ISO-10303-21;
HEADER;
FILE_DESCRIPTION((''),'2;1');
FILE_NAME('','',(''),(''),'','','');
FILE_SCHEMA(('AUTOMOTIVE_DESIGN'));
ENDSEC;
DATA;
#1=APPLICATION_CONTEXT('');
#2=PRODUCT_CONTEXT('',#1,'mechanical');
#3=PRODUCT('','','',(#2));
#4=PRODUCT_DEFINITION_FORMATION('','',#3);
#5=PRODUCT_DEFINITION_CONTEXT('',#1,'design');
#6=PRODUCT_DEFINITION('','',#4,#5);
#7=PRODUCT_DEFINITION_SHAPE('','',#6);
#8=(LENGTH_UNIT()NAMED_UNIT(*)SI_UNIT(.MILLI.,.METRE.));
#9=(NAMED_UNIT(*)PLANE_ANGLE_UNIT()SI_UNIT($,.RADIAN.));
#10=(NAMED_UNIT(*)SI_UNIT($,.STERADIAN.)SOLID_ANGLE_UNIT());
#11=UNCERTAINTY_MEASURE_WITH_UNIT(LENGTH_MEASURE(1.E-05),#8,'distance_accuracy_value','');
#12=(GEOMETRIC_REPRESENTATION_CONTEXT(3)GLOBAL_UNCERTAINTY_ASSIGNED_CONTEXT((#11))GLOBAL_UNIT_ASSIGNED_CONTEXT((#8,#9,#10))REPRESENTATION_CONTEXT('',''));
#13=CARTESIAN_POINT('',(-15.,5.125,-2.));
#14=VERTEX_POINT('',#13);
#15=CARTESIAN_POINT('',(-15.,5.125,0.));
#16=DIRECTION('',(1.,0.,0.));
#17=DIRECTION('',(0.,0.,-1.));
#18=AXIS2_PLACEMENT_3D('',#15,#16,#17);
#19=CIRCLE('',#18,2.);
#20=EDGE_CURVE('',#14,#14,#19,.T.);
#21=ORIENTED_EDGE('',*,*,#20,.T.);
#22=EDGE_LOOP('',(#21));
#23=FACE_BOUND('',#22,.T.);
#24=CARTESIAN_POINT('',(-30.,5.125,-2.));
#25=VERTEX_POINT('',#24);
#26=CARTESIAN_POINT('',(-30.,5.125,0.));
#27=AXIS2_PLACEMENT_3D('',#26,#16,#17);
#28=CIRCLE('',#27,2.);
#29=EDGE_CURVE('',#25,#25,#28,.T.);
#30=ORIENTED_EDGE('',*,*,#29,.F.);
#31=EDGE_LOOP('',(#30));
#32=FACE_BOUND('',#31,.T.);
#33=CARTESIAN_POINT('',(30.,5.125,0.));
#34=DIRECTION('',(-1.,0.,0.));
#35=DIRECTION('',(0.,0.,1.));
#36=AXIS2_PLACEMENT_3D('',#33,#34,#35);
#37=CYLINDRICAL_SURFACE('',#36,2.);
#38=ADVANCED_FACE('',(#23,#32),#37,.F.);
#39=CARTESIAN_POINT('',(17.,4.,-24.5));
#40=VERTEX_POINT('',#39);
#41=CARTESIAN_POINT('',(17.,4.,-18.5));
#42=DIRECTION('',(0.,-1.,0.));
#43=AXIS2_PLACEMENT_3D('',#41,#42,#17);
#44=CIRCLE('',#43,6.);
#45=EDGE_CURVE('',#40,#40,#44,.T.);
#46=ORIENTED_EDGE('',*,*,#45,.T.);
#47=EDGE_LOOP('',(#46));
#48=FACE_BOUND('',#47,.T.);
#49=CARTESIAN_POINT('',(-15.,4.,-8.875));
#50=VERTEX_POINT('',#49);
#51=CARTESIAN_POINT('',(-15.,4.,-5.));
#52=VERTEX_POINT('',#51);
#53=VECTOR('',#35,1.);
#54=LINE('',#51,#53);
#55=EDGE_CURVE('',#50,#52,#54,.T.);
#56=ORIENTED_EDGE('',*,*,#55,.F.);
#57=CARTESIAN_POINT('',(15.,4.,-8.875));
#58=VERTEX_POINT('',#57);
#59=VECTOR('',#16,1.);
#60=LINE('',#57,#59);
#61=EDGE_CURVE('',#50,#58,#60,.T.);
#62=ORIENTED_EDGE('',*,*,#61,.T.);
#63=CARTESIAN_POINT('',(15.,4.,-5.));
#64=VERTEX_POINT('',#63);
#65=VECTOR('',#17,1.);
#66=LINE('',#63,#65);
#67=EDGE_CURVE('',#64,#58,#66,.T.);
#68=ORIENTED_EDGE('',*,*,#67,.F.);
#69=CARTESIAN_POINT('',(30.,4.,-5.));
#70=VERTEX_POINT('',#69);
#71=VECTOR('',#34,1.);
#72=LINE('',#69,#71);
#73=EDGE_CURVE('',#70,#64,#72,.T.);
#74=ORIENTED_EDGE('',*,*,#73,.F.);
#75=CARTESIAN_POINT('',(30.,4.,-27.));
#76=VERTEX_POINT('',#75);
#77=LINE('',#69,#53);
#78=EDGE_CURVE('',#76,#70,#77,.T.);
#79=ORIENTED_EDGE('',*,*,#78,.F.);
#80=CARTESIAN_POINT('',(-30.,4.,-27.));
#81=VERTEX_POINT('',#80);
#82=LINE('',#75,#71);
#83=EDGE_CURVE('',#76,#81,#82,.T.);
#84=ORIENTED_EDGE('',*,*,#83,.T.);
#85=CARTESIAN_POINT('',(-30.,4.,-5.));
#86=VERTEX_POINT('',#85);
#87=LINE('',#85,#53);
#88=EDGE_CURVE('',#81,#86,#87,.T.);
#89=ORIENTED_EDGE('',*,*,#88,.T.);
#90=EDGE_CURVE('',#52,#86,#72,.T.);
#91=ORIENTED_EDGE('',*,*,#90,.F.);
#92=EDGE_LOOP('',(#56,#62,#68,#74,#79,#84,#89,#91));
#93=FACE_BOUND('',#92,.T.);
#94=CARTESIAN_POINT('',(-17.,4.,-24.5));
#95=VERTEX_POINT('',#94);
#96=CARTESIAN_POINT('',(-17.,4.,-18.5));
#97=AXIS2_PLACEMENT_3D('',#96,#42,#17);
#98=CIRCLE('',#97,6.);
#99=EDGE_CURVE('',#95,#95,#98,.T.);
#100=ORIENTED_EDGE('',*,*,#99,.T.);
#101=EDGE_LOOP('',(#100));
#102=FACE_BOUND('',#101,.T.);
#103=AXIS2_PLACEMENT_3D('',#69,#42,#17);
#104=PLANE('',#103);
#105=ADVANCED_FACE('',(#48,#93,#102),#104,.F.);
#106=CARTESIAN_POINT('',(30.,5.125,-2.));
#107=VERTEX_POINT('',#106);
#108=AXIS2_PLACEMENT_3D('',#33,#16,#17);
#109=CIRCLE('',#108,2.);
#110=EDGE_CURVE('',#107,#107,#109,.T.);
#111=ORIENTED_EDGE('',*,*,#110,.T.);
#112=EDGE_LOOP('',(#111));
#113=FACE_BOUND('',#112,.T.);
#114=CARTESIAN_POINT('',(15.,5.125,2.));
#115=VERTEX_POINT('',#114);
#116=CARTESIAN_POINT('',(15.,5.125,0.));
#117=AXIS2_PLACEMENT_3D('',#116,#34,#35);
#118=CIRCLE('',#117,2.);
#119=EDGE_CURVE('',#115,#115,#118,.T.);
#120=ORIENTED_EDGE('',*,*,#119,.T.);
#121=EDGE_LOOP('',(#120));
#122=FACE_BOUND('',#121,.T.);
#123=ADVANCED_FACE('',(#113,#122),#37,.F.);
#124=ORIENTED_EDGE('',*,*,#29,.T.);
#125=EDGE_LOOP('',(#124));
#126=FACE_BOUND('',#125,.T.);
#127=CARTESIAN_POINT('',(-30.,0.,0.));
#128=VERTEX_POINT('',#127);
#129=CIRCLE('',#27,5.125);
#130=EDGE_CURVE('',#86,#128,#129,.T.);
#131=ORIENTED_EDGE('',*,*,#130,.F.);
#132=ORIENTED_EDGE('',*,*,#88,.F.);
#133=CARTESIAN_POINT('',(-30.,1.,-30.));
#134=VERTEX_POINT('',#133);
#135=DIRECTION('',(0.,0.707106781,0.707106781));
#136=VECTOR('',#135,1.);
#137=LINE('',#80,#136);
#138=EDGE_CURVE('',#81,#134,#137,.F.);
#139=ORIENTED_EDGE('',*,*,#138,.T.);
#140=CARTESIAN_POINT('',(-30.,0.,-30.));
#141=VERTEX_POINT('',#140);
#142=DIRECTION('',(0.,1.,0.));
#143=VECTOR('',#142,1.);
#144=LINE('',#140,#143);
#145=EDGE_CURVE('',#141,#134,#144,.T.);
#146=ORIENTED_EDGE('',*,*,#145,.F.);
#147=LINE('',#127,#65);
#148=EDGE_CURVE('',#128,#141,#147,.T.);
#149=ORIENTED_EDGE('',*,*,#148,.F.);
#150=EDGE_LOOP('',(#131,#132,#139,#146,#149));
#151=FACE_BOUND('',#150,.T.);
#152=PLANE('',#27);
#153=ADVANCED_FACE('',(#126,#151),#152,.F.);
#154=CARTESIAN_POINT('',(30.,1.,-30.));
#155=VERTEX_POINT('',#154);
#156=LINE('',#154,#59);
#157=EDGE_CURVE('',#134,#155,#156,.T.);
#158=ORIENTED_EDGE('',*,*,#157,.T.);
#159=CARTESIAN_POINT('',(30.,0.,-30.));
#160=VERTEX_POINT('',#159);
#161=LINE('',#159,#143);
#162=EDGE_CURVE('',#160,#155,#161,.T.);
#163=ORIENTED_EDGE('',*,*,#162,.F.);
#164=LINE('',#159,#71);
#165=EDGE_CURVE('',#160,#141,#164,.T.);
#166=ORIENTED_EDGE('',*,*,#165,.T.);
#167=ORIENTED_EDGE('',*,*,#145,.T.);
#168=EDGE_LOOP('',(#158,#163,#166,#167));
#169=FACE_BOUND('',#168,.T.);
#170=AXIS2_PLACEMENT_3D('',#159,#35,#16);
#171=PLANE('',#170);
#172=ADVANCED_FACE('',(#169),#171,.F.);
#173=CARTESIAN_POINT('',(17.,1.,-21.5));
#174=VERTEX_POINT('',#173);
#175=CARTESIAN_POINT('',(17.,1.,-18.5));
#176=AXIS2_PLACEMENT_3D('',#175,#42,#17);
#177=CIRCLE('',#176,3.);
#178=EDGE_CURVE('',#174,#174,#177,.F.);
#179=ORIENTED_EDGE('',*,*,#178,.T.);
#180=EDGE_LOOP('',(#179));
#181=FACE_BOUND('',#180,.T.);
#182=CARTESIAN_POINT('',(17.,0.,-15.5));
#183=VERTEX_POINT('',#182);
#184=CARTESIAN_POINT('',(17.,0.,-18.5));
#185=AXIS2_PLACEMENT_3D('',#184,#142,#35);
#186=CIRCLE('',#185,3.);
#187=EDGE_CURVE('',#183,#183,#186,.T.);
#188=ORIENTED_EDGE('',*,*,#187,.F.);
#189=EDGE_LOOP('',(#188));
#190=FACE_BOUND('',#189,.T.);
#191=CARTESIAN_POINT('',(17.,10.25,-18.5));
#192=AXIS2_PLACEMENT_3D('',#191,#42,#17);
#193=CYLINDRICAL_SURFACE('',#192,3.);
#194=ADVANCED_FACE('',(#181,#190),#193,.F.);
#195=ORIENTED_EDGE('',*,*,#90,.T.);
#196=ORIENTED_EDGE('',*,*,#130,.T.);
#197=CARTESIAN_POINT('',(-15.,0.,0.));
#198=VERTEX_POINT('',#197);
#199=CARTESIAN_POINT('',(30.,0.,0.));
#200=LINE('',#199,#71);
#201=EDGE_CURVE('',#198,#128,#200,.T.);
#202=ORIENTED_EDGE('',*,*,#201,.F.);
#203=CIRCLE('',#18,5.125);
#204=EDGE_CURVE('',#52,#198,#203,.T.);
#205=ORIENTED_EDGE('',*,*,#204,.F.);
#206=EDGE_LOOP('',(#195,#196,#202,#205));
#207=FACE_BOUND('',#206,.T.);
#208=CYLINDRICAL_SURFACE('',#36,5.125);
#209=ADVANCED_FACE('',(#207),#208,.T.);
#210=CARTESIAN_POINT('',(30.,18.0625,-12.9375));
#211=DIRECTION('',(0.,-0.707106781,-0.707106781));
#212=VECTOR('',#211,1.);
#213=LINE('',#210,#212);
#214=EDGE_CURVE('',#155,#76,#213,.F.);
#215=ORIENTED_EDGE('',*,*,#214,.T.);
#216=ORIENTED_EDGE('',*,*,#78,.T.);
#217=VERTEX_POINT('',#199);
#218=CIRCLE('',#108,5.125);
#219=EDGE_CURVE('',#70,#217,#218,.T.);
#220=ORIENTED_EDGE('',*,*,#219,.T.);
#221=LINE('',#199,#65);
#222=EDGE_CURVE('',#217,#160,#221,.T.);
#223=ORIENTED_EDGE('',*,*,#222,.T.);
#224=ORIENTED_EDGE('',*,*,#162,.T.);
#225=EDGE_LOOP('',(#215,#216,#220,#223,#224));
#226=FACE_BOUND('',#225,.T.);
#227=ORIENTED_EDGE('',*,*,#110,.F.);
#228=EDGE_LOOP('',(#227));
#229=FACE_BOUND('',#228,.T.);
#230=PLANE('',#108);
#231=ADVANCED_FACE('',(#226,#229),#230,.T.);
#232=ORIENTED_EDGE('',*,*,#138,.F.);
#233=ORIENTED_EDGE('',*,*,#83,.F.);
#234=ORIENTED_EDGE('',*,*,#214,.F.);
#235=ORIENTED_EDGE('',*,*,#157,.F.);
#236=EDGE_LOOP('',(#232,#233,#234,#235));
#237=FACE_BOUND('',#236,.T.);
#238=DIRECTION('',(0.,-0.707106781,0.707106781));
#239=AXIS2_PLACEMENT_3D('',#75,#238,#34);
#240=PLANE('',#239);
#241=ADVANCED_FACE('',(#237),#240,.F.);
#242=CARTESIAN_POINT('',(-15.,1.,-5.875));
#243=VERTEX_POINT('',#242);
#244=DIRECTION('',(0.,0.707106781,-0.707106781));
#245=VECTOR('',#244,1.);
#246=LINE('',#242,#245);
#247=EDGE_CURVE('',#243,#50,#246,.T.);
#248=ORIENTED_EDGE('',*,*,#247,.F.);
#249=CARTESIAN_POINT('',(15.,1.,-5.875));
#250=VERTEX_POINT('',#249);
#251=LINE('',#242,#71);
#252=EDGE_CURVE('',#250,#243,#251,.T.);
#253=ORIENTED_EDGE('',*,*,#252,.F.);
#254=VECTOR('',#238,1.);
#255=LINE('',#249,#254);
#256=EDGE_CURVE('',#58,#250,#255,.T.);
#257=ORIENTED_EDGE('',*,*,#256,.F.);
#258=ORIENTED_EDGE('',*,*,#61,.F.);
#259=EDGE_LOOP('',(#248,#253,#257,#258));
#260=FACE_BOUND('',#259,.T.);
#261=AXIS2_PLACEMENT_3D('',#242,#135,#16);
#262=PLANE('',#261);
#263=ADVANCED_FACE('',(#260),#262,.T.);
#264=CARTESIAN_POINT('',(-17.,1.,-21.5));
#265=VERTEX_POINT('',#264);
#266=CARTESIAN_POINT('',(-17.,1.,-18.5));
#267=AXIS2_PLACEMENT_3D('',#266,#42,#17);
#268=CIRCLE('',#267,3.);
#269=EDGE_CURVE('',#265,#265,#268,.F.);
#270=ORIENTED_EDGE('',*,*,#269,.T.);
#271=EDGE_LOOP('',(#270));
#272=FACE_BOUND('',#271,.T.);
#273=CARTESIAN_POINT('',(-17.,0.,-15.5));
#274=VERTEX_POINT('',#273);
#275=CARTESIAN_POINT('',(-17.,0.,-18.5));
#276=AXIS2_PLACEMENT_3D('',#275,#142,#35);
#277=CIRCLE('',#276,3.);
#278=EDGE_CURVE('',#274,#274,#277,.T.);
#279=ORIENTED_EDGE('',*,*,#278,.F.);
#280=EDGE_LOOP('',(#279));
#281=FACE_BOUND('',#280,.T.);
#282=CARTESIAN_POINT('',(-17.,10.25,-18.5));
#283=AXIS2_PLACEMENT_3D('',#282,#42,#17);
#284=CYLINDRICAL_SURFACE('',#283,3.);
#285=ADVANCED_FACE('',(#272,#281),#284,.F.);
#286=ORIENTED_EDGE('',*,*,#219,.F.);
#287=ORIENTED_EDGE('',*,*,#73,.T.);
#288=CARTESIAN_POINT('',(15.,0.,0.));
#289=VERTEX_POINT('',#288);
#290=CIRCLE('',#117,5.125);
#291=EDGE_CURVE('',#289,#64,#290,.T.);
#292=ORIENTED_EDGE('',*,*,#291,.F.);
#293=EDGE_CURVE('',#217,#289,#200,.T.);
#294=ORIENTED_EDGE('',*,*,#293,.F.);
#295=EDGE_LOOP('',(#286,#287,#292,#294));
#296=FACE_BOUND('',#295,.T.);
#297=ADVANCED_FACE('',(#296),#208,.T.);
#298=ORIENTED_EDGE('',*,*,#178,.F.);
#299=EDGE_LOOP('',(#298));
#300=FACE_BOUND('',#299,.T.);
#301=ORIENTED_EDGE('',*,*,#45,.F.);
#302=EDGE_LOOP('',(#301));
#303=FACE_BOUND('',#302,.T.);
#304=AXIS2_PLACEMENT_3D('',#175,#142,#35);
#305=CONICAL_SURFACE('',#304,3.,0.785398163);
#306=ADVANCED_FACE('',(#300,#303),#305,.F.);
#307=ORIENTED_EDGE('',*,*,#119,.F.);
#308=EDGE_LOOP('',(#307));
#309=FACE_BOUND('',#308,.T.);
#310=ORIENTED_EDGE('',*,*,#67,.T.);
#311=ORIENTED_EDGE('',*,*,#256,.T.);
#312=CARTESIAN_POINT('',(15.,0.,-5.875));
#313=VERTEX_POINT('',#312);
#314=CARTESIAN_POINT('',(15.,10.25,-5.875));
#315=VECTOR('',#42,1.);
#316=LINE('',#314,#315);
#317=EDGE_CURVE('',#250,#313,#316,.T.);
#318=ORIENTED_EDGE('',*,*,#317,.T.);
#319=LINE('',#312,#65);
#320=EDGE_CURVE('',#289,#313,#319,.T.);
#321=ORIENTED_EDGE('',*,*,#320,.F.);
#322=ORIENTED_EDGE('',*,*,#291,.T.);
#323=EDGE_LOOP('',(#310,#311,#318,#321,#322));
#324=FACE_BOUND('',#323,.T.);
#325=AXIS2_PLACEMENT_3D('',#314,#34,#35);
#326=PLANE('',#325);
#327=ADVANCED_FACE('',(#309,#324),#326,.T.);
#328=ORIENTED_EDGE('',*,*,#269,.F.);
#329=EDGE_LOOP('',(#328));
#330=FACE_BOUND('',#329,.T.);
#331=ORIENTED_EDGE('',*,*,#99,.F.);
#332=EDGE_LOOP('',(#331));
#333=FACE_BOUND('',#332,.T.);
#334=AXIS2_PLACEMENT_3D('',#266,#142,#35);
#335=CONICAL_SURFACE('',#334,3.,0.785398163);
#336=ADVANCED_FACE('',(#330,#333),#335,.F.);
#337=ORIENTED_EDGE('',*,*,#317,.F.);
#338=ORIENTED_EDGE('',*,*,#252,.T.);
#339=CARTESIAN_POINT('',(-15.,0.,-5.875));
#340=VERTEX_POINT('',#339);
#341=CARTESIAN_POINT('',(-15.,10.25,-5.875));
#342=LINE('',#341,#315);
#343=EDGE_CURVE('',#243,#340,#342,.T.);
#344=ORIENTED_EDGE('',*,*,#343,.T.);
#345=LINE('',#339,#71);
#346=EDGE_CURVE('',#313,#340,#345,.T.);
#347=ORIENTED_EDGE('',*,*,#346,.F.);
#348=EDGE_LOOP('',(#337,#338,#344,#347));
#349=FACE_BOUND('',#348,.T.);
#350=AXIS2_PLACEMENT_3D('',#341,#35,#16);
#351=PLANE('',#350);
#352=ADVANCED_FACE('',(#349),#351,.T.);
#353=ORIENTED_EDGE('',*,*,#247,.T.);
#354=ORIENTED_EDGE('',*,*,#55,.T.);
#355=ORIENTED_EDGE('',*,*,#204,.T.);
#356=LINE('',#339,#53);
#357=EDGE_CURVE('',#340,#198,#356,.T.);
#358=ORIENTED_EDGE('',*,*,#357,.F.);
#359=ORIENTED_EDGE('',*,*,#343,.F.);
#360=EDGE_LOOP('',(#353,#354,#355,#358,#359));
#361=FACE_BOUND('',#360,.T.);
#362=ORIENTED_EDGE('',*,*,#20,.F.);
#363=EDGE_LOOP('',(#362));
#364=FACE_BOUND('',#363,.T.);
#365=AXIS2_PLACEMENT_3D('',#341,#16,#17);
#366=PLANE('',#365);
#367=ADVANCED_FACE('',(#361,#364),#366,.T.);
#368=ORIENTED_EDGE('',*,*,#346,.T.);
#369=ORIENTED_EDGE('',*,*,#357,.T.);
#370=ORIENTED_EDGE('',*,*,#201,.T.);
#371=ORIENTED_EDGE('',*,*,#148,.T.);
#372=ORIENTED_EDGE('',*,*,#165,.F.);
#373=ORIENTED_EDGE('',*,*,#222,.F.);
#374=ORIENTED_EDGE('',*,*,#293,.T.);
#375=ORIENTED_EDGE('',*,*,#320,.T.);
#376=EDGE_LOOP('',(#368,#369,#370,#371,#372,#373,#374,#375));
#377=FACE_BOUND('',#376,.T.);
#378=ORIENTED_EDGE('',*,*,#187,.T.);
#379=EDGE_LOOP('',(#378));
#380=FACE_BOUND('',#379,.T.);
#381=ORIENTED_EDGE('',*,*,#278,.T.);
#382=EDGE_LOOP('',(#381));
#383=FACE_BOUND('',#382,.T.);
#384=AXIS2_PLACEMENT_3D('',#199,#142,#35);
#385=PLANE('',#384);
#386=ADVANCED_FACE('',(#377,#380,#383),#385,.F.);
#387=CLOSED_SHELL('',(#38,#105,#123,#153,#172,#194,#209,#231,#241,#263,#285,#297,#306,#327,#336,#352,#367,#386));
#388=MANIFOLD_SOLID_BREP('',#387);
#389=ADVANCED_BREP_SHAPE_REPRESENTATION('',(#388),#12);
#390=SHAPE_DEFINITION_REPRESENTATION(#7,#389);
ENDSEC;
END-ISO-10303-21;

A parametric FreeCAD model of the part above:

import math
import FreeCAD as App
import Part
import Sketcher

V = App.Vector
Q = App.Units.Quantity


def edges_at(feature, points):
    """Names of the edges that pass closest to the given points."""
    edges = feature.Shape.Edges
    near = lambda p: min(range(len(edges)), key=lambda i: edges[i].distToShape(Part.Vertex(*p))[0])
    return sorted({f"Edge{near(p) + 1}" for p in points})


def add_polygon(sketch, points):
    """Adds a closed chain of lines whose ends are joined by coincident constraints."""
    first, n = sketch.GeometryCount, len(points)
    for a, b in zip(points, points[1:] + points[:1]):
        sketch.addGeometry(Part.LineSegment(App.Vector(*a, 0), App.Vector(*b, 0)), False)
    for i in range(n):
        sketch.addConstraint(Sketcher.Constraint("Coincident", first + i, 2, first + (i + 1) % n, 1))

doc = App.newDocument("Part")
body = doc.addObject("PartDesign::Body", "Body")

# Sketch on YZ plane
sketch1 = body.newObject("Sketcher::SketchObject", "Sketch")
sketch1.AttachmentSupport = (doc.getObject("YZ_Plane"), [""])
sketch1.MapMode = "FlatFace"
sketch1.addGeometry([
    Part.LineSegment(V(0, 0, 0), V(0, -30, 0)),  # 0
    Part.LineSegment(V(0, -30, 0), V(4, -30, 0)),  # 1
    Part.LineSegment(V(4, -30, 0), V(4, -5, 0)),  # 2
    Part.ArcOfCircle(Part.Circle(V(5.1, 0, 0), V(0, 0, 1), 5.1), math.radians(-103), math.radians(180)),  # 3
    Part.Circle(V(5.1, 0, 0), V(0, 0, 1), 2),  # 4
], False)
sketch1.addConstraint([
    Sketcher.Constraint("Coincident", 0, 2, 1, 1),
    Sketcher.Constraint("Coincident", 1, 2, 2, 1),
    Sketcher.Constraint("Coincident", 2, 2, 3, 1),
    Sketcher.Constraint("Tangent", 3, 2, 0, 1),
    Sketcher.Constraint("Vertical", 0),
    Sketcher.Constraint("Horizontal", 1),
    Sketcher.Constraint("Vertical", 2),
    Sketcher.Constraint("Coincident", 3, 2, -1, 1),
    Sketcher.Constraint("Coincident", 4, 3, 3, 3),
    Sketcher.Constraint("Diameter", 4, Q("4 mm")),
    Sketcher.Constraint("DistanceX", 1, 1, 1, 2, Q("4 mm")),
    Sketcher.Constraint("DistanceY", 0, 2, 0, 1, Q("30 mm")),
    Sketcher.Constraint("DistanceY", 2, 1, 2, 2, Q("25 mm")),
])
pad1 = body.newObject("PartDesign::Pad", "Pad")
pad1.Profile = sketch1
pad1.Length = 60
pad1.Midplane = True

# Sketch on XZ plane
sketch2 = body.newObject("Sketcher::SketchObject", "Sketch001")
sketch2.AttachmentSupport = (doc.getObject("XZ_Plane"), [""])
sketch2.MapMode = "FlatFace"
sketch2.addGeometry(Part.Circle(V(-17, -18.5, 0), V(0, 0, 1), 3), False)  # 0
sketch2.addGeometry(Part.Circle(V(17, -18.5, 0), V(0, 0, 1), 3), False)  # 1
add_polygon(sketch2, [(-15, -5.9), (-15, 5.1), (15, 5.1), (15, -5.9)])  # lines 2-5
sketch2.addConstraint([
    Sketcher.Constraint("Vertical", 2),
    Sketcher.Constraint("Horizontal", 3),
    Sketcher.Constraint("Vertical", 4),
    Sketcher.Constraint("Horizontal", 5),
    Sketcher.Constraint("Equal", 0, 1),
    Sketcher.Constraint("Symmetric", 0, 3, 1, 3, -2),
    Sketcher.Constraint("Diameter", 0, Q("6 mm")),
    Sketcher.Constraint("DistanceX", 3, 1, 3, 2, Q("30 mm")),
    Sketcher.Constraint("DistanceY", 2, 1, 2, 2, Q("11 mm")),
    Sketcher.Constraint("DistanceX", 0, 3, -1, 1, Q("17 mm")),
    Sketcher.Constraint("DistanceX", 2, 2, -1, 1, Q("15 mm")),
    Sketcher.Constraint("DistanceY", 0, 3, -1, 1, Q("18.5 mm")),
    Sketcher.Constraint("DistanceY", -1, 1, 2, 2, Q("5.125 mm")),
])
pocket1 = body.newObject("PartDesign::Pocket", "Pocket")
pocket1.Profile = sketch2
pocket1.Type = "ThroughAll"
doc.recompute()

chamfer = body.newObject("PartDesign::Chamfer", "Chamfer")
chamfer.Base = (pocket1, edges_at(pocket1, [
    (0, 4, -5.875),
    (17, 4, -15.5),
    (-17, 4, -15.5),
    (0, 4, -30),
]))
chamfer.Size = 3

doc.recompute()
